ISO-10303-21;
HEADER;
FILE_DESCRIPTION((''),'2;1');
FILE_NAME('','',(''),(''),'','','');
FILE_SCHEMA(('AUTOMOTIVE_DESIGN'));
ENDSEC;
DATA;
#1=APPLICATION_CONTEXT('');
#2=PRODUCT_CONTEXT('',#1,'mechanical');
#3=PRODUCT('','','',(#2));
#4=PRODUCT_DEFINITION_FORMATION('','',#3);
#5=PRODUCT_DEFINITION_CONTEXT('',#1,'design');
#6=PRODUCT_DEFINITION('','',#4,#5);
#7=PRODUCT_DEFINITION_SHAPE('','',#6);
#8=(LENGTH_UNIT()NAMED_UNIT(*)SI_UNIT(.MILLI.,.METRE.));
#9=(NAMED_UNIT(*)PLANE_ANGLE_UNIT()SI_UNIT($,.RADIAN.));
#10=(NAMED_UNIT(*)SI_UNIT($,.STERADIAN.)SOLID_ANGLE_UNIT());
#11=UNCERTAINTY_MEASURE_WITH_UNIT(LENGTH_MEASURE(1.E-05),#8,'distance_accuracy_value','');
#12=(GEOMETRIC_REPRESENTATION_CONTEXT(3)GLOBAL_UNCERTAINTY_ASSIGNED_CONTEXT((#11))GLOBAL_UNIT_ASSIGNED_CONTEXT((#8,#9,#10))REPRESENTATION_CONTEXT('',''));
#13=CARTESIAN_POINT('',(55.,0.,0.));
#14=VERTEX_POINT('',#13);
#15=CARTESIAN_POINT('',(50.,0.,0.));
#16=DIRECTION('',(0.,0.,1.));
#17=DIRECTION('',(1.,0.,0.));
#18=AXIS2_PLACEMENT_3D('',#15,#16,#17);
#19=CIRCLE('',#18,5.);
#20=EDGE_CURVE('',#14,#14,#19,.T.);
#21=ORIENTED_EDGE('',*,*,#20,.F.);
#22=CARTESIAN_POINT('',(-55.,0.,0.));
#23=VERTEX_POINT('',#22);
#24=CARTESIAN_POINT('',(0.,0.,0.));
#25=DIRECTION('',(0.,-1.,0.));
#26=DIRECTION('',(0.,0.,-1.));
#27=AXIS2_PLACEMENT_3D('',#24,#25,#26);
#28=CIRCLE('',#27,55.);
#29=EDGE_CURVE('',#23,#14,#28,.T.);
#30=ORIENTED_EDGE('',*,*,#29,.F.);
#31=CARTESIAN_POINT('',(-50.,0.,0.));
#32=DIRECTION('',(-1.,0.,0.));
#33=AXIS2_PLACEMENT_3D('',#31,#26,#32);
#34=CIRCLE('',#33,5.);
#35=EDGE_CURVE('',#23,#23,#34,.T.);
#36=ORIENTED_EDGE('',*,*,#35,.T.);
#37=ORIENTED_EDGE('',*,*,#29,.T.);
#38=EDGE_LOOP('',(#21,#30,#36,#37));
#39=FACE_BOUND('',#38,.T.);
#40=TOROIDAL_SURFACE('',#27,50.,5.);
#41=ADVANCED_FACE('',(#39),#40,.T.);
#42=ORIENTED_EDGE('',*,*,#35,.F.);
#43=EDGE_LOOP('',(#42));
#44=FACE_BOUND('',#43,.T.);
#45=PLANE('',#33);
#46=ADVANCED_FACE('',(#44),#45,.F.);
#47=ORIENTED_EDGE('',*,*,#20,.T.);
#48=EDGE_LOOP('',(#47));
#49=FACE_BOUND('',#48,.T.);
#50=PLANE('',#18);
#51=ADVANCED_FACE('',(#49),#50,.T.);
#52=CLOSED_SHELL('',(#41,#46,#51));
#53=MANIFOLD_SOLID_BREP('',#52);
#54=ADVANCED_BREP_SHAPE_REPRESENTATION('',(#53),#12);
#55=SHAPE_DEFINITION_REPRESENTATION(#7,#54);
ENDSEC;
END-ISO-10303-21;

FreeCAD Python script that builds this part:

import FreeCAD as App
import Part
import Sketcher
Q = App.Units.Quantity

doc = App.newDocument("Part")
params = doc.addObject("Spreadsheet::Sheet", "Params")
for row, (alias, value) in enumerate([
    ("sketch1_diameter", "10 mm"),
    ("revolution_angle", "180 deg"),
], start=1):
    params.set(f"A{row}", alias)
    params.set(f"B{row}", "=" + value)
    params.setAlias(f"B{row}", alias)

body = doc.addObject("PartDesign::Body", "Body")

# Sketch on XY plane
sketch1 = body.newObject("Sketcher::SketchObject", "Sketch")
sketch1.AttachmentSupport = (doc.getObject("XY_Plane"), [""])
sketch1.MapMode = "FlatFace"
sketch1.addGeometry(Part.Circle(App.Vector(50, 0, 0), App.Vector(0, 0, 1), 5), False)
sketch1.addConstraint(Sketcher.Constraint("PointOnObject", 0, 3, -1))
sketch1.addConstraint(Sketcher.Constraint("Diameter", 0, Q("10 mm")))
sketch1.addConstraint(Sketcher.Constraint("DistanceX", -1, 1, 0, 3, Q("50 mm")))
sketch1.setExpression("Constraints[1]", "Params.sketch1_diameter")
revolution = body.newObject("PartDesign::Revolution", "Revolution")
revolution.Profile = sketch1
revolution.ReferenceAxis = (sketch1, ["V_Axis"])
revolution.setExpression("Angle", "Params.revolution_angle")

doc.recompute()
